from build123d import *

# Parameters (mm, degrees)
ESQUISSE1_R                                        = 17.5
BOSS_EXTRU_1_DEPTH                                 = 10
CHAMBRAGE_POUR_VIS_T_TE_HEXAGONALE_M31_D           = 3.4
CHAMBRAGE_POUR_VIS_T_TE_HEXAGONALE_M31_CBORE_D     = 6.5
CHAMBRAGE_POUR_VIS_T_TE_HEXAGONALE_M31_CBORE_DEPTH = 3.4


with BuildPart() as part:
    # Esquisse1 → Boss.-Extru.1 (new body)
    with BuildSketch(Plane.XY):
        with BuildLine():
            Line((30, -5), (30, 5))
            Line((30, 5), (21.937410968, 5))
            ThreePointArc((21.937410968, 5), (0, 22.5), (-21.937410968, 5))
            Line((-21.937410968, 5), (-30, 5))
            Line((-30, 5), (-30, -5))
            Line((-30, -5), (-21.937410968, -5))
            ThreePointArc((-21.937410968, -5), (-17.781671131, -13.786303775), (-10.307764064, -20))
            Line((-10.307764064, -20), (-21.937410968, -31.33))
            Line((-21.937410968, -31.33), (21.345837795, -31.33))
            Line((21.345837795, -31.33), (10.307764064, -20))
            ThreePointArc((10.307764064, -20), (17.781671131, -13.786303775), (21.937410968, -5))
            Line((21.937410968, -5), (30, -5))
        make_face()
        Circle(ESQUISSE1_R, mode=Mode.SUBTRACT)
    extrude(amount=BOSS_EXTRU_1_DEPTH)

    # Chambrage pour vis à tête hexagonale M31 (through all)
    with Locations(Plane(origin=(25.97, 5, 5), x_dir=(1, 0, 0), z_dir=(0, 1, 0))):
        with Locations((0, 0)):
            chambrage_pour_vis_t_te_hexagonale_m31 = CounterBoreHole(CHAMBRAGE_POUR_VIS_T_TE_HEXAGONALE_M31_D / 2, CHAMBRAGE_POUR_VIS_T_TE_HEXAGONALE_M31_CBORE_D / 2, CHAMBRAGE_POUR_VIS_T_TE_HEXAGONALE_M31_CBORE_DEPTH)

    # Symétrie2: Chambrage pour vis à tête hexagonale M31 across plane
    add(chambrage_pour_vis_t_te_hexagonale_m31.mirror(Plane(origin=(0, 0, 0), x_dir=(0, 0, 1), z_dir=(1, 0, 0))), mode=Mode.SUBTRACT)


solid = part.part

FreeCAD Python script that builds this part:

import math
import FreeCAD as App
import Part
import Sketcher
Q = App.Units.Quantity

doc = App.newDocument("Part")
body = doc.addObject("PartDesign::Body", "Body")

# Sketch on XY plane
sketch1 = body.newObject("Sketcher::SketchObject", "Sketch")
sketch1.AttachmentSupport = (doc.getObject("XY_Plane"), [""])
sketch1.MapMode = "FlatFace"
sketch1.addGeometry([
    Part.LineSegment(App.Vector(30, -5, 0), App.Vector(30, 5, 0)),  # 0
    Part.LineSegment(App.Vector(30, 5, 0), App.Vector(22, 5, 0)),  # 1
    Part.ArcOfCircle(Part.Circle(App.Vector(0, 0, 0), App.Vector(0, 0, 1), 22), math.radians(13), math.radians(167)),  # 2
    Part.LineSegment(App.Vector(-22, 5, 0), App.Vector(-30, 5, 0)),  # 3
    Part.LineSegment(App.Vector(-30, 5, 0), App.Vector(-30, -5, 0)),  # 4
    Part.LineSegment(App.Vector(-30, -5, 0), App.Vector(-22, -5, 0)),  # 5
    Part.ArcOfCircle(Part.Circle(App.Vector(0, 0, 0), App.Vector(0, 0, 1), 22), math.radians(-167), math.radians(-117)),  # 6
    Part.LineSegment(App.Vector(-10, -20, 0), App.Vector(-22, -31, 0)),  # 7
    Part.LineSegment(App.Vector(-22, -31, 0), App.Vector(21, -31, 0)),  # 8
    Part.LineSegment(App.Vector(21, -31, 0), App.Vector(10, -20, 0)),  # 9
    Part.ArcOfCircle(Part.Circle(App.Vector(0, 0, 0), App.Vector(0, 0, 1), 22), math.radians(-63), math.radians(-13)),  # 10
    Part.LineSegment(App.Vector(22, -5, 0), App.Vector(30, -5, 0)),  # 11
    Part.Circle(App.Vector(0, 0, 0), App.Vector(0, 0, 1), 18),  # 12
], False)
sketch1.addConstraint([
    Sketcher.Constraint("Coincident", 0, 2, 1, 1),
    Sketcher.Constraint("Coincident", 1, 2, 2, 1),
    Sketcher.Constraint("Coincident", 2, 2, 3, 1),
    Sketcher.Constraint("Coincident", 3, 2, 4, 1),
    Sketcher.Constraint("Coincident", 4, 2, 5, 1),
    Sketcher.Constraint("Coincident", 5, 2, 6, 1),
    Sketcher.Constraint("Coincident", 6, 2, 7, 1),
    Sketcher.Constraint("Coincident", 7, 2, 8, 1),
    Sketcher.Constraint("Coincident", 8, 2, 9, 1),
    Sketcher.Constraint("Coincident", 9, 2, 10, 1),
    Sketcher.Constraint("Coincident", 10, 2, 11, 1),
    Sketcher.Constraint("Coincident", 11, 2, 0, 1),
    Sketcher.Constraint("Vertical", 0),
    Sketcher.Constraint("Horizontal", 1),
    Sketcher.Constraint("Horizontal", 3),
    Sketcher.Constraint("Vertical", 4),
    Sketcher.Constraint("Horizontal", 5),
    Sketcher.Constraint("Horizontal", 8),
    Sketcher.Constraint("Horizontal", 11),
    Sketcher.Constraint("Coincident", 2, 3, -1, 1),
    Sketcher.Constraint("Coincident", 6, 3, -1, 1),
    Sketcher.Constraint("Coincident", 10, 3, -1, 1),
    Sketcher.Constraint("Coincident", 12, 3, -1, 1),
    Sketcher.Constraint("Equal", 2, 6),
    Sketcher.Constraint("Equal", 6, 10),
    Sketcher.Constraint("Symmetric", 0, 2, 4, 2, -1, 1),
    Sketcher.Constraint("Perpendicular", 7, 9),
    Sketcher.Constraint("Horizontal", 1, 2, 2, 2),
    Sketcher.Constraint("Horizontal", 6, 2, 9, 2),
    Sketcher.Constraint("Horizontal", 5, 2, 10, 2),
    Sketcher.Constraint("Vertical", 5, 2, 7, 2),
    Sketcher.Constraint("Diameter", 12, Q("35 mm")),
    Sketcher.Constraint("Radius", 2, Q("22.5 mm")),
    Sketcher.Constraint("DistanceY", 0, 1, 0, 2, Q("10 mm")),
    Sketcher.Constraint("DistanceX", -1, 1, 0, 2, Q("30 mm")),
    Sketcher.Constraint("DistanceY", 6, 2, -1, 1, Q("20 mm")),
    Sketcher.Constraint("DistanceY", 7, 2, -1, 1, Q("31.33 mm")),
])
pad1 = body.newObject("PartDesign::Pad", "Pad")
pad1.Profile = sketch1
pad1.Length = 10

# Sketch on XZ plane
sketch2 = body.newObject("Sketcher::SketchObject", "Sketch001")
sketch2.AttachmentSupport = (doc.getObject("XZ_Plane"), [""])
sketch2.MapMode = "FlatFace"
sketch2.AttachmentOffset = App.Placement(App.Vector(0, 0, -5), App.Rotation())
sketch2.addGeometry(Part.Circle(App.Vector(26, 5, 0), App.Vector(0, 0, 1), 1.7), False)
sketch2.addConstraint([
    Sketcher.Constraint("Diameter", 0, Q("3.4 mm")),
    Sketcher.Constraint("DistanceY", -1, 1, 0, 3, Q("5 mm")),
    Sketcher.Constraint("DistanceX", -1, 1, 0, 3, Q("25.97 mm")),
])
doc.recompute()
hole = body.newObject("PartDesign::Hole", "Hole")
hole.Profile = sketch2
hole.ThreadType = "None"
hole.Diameter = 3.4
hole.DepthType = "ThroughAll"
hole.HoleCutType = "Counterbore"
hole.HoleCutDiameter = 6.5
hole.HoleCutDepth = 3.4
hole.Reversed = True
doc.recompute()

mirrored = body.newObject("PartDesign::Mirrored", "Mirrored")
mirrored.Originals = [hole]
mirrored.MirrorPlane = (doc.getObject("YZ_Plane"), [""])
body.Tip = mirrored

doc.recompute()
